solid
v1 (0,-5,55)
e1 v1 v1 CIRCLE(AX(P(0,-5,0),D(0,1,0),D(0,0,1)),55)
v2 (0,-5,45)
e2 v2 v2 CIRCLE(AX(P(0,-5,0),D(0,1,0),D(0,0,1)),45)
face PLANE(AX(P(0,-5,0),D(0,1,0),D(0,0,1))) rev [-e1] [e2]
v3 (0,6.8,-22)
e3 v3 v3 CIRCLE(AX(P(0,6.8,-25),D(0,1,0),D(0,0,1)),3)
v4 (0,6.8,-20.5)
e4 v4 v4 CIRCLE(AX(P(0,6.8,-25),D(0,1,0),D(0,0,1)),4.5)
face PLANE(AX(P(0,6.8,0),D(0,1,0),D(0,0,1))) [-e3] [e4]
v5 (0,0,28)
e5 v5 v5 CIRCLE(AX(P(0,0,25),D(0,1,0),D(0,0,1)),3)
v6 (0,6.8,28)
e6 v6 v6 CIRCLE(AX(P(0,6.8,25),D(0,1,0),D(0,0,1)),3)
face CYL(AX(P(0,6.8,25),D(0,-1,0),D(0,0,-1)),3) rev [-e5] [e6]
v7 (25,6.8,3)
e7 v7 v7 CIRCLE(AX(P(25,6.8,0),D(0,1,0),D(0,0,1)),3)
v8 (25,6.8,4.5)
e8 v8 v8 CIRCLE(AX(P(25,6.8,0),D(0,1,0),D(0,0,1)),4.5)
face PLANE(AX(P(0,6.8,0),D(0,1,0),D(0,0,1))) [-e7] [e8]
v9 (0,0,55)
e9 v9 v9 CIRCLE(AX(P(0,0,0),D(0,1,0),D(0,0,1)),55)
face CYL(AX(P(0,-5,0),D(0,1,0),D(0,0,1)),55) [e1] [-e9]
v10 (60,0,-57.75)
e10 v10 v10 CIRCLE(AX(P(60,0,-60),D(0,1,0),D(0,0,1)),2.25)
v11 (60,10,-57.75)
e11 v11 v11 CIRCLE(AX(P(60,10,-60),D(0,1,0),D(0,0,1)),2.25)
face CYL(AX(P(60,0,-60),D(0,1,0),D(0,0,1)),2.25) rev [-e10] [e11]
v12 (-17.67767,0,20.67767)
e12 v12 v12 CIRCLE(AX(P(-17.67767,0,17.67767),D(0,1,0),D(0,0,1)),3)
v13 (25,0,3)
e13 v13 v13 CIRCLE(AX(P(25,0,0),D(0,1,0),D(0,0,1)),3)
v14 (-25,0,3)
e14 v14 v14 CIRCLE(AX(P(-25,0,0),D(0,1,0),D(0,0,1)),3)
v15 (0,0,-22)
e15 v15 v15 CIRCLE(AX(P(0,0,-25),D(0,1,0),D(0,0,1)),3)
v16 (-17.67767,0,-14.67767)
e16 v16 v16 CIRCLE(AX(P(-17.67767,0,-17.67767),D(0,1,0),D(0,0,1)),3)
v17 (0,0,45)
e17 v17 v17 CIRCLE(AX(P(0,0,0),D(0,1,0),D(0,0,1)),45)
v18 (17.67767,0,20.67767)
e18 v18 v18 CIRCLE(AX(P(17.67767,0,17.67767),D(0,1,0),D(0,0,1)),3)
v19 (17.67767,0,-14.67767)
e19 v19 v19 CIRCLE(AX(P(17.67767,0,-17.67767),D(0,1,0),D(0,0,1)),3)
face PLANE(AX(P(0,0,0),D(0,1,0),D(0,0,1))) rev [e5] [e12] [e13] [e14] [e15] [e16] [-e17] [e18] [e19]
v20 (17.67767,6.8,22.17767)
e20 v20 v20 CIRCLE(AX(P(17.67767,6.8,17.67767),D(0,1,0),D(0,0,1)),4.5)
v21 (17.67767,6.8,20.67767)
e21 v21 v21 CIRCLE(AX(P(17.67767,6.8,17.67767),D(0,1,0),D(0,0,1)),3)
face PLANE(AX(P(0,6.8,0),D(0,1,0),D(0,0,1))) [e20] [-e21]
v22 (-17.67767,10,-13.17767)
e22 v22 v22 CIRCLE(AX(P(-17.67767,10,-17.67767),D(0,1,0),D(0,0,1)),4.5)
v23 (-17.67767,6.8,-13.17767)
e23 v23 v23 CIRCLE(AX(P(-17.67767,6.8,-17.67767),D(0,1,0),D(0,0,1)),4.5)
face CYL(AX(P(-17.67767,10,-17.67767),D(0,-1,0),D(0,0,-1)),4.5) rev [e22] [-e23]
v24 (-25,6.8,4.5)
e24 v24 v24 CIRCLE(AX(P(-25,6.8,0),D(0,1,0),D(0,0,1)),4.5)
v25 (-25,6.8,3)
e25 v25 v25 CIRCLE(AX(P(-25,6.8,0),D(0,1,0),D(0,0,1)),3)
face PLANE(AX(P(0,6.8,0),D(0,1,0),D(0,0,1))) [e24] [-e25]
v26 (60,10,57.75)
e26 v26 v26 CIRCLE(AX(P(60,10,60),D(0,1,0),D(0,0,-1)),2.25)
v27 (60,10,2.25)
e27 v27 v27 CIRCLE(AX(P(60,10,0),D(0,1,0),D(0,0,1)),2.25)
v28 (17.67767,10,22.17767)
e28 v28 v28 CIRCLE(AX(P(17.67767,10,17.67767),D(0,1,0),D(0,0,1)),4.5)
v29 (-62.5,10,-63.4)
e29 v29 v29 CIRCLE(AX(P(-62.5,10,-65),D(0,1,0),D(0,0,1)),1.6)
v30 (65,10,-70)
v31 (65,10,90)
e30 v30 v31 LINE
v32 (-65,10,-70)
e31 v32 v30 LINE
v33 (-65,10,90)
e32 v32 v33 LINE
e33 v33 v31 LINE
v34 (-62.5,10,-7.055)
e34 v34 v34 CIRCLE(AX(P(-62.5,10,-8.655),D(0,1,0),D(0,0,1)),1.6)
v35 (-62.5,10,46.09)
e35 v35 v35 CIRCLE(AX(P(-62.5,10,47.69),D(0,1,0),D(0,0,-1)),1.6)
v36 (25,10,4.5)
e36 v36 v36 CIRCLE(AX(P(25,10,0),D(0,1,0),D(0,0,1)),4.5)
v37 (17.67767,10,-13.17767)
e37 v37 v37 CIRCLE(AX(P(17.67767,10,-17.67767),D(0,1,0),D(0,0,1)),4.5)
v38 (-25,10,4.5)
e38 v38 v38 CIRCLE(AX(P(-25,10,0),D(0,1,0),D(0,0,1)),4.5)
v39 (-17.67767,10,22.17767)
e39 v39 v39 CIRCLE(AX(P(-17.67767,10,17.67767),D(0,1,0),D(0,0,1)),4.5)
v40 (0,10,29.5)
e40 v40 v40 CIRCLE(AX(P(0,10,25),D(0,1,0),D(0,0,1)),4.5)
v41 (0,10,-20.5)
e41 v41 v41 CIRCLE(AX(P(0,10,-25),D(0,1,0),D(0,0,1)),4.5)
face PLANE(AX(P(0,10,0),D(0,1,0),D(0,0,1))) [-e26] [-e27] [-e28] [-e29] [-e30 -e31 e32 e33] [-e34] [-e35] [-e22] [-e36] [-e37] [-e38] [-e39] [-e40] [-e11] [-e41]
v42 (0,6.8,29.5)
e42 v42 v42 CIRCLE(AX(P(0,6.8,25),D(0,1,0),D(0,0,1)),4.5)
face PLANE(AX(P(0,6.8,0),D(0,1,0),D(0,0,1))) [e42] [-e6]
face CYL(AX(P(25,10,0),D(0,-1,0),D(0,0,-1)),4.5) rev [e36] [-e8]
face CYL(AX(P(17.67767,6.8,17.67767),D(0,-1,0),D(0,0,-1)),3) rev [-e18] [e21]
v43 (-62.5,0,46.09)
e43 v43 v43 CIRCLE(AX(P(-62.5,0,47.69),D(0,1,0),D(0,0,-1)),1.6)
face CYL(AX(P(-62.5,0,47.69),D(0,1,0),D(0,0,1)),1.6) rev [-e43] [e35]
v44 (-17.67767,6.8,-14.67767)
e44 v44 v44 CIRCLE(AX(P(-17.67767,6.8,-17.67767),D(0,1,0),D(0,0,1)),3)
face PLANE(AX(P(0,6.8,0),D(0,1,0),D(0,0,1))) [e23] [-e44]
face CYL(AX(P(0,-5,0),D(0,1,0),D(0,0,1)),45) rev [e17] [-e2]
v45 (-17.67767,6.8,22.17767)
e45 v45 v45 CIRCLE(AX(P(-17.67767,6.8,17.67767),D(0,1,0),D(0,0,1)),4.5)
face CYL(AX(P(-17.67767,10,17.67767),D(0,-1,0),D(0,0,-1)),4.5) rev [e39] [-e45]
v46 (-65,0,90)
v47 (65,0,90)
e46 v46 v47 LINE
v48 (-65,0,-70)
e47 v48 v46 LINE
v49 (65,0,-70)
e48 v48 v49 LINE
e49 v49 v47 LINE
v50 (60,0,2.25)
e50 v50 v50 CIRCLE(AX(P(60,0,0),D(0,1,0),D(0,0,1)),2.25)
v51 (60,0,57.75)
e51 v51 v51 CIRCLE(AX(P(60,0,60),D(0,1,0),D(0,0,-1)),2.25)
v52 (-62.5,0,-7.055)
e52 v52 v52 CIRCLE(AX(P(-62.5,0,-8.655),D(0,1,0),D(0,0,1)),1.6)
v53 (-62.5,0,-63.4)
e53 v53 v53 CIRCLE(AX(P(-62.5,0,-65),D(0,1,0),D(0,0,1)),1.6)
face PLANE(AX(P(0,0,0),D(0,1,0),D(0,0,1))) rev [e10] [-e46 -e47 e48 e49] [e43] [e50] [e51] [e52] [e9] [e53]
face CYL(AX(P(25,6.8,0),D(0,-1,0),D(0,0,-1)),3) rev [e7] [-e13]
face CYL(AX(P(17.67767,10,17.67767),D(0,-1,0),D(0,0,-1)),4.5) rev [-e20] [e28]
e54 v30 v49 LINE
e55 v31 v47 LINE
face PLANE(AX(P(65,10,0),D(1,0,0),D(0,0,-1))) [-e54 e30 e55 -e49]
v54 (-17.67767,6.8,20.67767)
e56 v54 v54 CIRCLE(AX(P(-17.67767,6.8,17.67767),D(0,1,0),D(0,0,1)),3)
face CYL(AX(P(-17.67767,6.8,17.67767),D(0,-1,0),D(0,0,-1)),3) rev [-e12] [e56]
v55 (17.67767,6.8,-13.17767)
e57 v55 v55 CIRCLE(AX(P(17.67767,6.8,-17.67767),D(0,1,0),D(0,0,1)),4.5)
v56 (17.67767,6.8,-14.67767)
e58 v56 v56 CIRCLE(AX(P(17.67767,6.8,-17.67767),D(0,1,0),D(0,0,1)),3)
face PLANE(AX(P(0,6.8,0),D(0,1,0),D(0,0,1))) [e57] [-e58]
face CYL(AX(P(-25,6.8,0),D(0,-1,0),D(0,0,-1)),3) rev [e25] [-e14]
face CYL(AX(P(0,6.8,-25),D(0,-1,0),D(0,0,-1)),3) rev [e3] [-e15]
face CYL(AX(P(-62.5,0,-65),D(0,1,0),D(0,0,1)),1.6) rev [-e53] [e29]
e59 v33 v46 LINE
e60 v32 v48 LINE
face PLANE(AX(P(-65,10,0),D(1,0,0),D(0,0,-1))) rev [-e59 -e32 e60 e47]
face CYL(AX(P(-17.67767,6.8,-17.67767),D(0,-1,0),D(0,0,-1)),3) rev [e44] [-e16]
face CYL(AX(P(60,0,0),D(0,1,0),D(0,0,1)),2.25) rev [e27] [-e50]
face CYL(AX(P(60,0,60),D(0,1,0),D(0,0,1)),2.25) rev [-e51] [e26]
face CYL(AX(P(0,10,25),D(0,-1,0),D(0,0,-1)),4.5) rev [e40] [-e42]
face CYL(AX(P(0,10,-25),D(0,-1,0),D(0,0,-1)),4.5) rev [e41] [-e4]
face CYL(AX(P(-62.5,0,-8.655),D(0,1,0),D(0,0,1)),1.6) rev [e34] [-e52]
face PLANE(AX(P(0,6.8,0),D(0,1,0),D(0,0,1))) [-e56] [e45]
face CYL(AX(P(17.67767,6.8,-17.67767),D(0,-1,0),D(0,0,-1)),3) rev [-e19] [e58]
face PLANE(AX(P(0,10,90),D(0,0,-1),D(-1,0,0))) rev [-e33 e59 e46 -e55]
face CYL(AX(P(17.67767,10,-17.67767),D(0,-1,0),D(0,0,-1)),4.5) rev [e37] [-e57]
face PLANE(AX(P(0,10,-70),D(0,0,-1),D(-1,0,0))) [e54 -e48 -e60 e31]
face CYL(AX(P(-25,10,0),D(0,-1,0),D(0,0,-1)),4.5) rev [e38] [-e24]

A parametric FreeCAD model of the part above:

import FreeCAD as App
import Part
import Sketcher

doc = App.newDocument("Part")
body = doc.addObject("PartDesign::Body", "Body")

# Sketch on XZ plane
sketch1 = doc.addObject("Sketcher::SketchObject", "Sketch")
body.addObject(sketch1)
sketch1.AttachmentSupport = (doc.XZ_Plane, [""])
sketch1.MapMode = "FlatFace"
sketch1.addGeometry([
    Part.LineSegment(App.Vector(-65, -70, 0), App.Vector(-65, 90, 0)),  # 0
    Part.LineSegment(App.Vector(-65, 90, 0), App.Vector(65, 90, 0)),  # 1
    Part.LineSegment(App.Vector(65, 90, 0), App.Vector(65, -70, 0)),  # 2
    Part.LineSegment(App.Vector(65, -70, 0), App.Vector(-65, -70, 0)),  # 3
    Part.Circle(App.Vector(-17.7, 17.7, 0), App.Vector(0, 0, 1), 4.5),  # 4
    Part.Circle(App.Vector(0, 25, 0), App.Vector(0, 0, 1), 4.5),  # 5
    Part.Circle(App.Vector(17.7, 17.7, 0), App.Vector(0, 0, 1), 4.5),  # 6
    Part.Circle(App.Vector(-25, 0, 0), App.Vector(0, 0, 1), 4.5),  # 7
    Part.Circle(App.Vector(-17.7, -17.7, 0), App.Vector(0, 0, 1), 4.5),  # 8
    Part.Circle(App.Vector(25, 0, 0), App.Vector(0, 0, 1), 4.5),  # 9
    Part.Circle(App.Vector(0, -25, 0), App.Vector(0, 0, 1), 4.5),  # 10
    Part.Circle(App.Vector(17.7, -17.7, 0), App.Vector(0, 0, 1), 4.5),  # 11
], False)
sketch1.addConstraint([
    Sketcher.Constraint("Coincident", 0, 2, 1, 1),
    Sketcher.Constraint("Coincident", 1, 2, 2, 1),
    Sketcher.Constraint("Coincident", 2, 2, 3, 1),
    Sketcher.Constraint("Coincident", 3, 2, 0, 1),
    Sketcher.Constraint("Vertical", 0),
    Sketcher.Constraint("Horizontal", 1),
    Sketcher.Constraint("Vertical", 2),
    Sketcher.Constraint("Horizontal", 3),
    Sketcher.Constraint("Equal", 4, 5),
    Sketcher.Constraint("Equal", 5, 6),
    Sketcher.Constraint("Equal", 6, 7),
    Sketcher.Constraint("Equal", 7, 8),
    Sketcher.Constraint("Equal", 8, 9),
    Sketcher.Constraint("Equal", 9, 10),
    Sketcher.Constraint("Equal", 10, 11),
    Sketcher.Constraint("Symmetric", 6, 3, 8, 3, -1, 1),
    Sketcher.Constraint("Symmetric", 7, 3, 9, 3, -1, 1),
    Sketcher.Constraint("Symmetric", 5, 3, 10, 3, -1, 1),
    Sketcher.Constraint("Symmetric", 4, 3, 11, 3, -1, 1),
    Sketcher.Constraint("Symmetric", 4, 3, 6, 3, -2),
    Sketcher.Constraint("PointOnObject", 5, 3, -2),
    Sketcher.Constraint("PointOnObject", 7, 3, -1),
    Sketcher.Constraint("Diameter", 4, 9.0),
    Sketcher.Constraint("DistanceX", 1, 1, 1, 2, 130.0),
    Sketcher.Constraint("DistanceY", 0, 1, 0, 2, 160.0),
    Sketcher.Constraint("DistanceY", -1, 1, 5, 3, 25.0),
    Sketcher.Constraint("DistanceX", 7, 3, -1, 1, 25.0),
    Sketcher.Constraint("DistanceX", 0, 2, -1, 1, 65.0),
    Sketcher.Constraint("DistanceY", -1, 1, 0, 2, 90.0),
    Sketcher.Constraint("DistanceX", 4, 3, -1, 1, 17.67767),
    Sketcher.Constraint("DistanceY", -1, 1, 4, 3, 17.67767),
])
pad1 = doc.addObject("PartDesign::Pad", "Pad")
body.addObject(pad1)
pad1.Profile = sketch1
pad1.Length = 10
pad1.Reversed = True

# Sketch on XZ plane
sketch2 = doc.addObject("Sketcher::SketchObject", "Sketch001")
body.addObject(sketch2)
sketch2.AttachmentSupport = (doc.XZ_Plane, [""])
sketch2.MapMode = "FlatFace"
sketch2.addGeometry([
    Part.Circle(App.Vector(0, 0, 0), App.Vector(0, 0, 1), 55),
    Part.Circle(App.Vector(0, 0, 0), App.Vector(0, 0, 1), 45),
], False)
sketch2.addConstraint([
    Sketcher.Constraint("Coincident", 0, 3, -1, 1),
    Sketcher.Constraint("Coincident", 1, 3, -1, 1),
    Sketcher.Constraint("Diameter", 0, 110.0),
    Sketcher.Constraint("Diameter", 1, 90.0),
])
pad2 = doc.addObject("PartDesign::Pad", "Pad001")
body.addObject(pad2)
pad2.Profile = sketch2
pad2.Length = 5

# Sketch on XZ plane
sketch3 = doc.addObject("Sketcher::SketchObject", "Sketch002")
body.addObject(sketch3)
sketch3.AttachmentSupport = (doc.XZ_Plane, [""])
sketch3.MapMode = "FlatFace"
sketch3.addGeometry([
    Part.Circle(App.Vector(17.7, 17.7, 0), App.Vector(0, 0, 1), 4.5),  # 0
    Part.Circle(App.Vector(17.7, 17.7, 0), App.Vector(0, 0, 1), 3),  # 1
    Part.Circle(App.Vector(25, 0, 0), App.Vector(0, 0, 1), 4.5),  # 2
    Part.Circle(App.Vector(25, 0, 0), App.Vector(0, 0, 1), 3),  # 3
    Part.Circle(App.Vector(17.7, -17.7, 0), App.Vector(0, 0, 1), 4.5),  # 4
    Part.Circle(App.Vector(17.7, -17.7, 0), App.Vector(0, 0, 1), 3),  # 5
    Part.Circle(App.Vector(0, -25, 0), App.Vector(0, 0, 1), 4.5),  # 6
    Part.Circle(App.Vector(0, -25, 0), App.Vector(0, 0, 1), 3),  # 7
    Part.Circle(App.Vector(-17.7, -17.7, 0), App.Vector(0, 0, 1), 4.5),  # 8
    Part.Circle(App.Vector(-17.7, -17.7, 0), App.Vector(0, 0, 1), 3),  # 9
    Part.Circle(App.Vector(-25, 0, 0), App.Vector(0, 0, 1), 4.5),  # 10
    Part.Circle(App.Vector(-25, 0, 0), App.Vector(0, 0, 1), 3),  # 11
    Part.Circle(App.Vector(-17.7, 17.7, 0), App.Vector(0, 0, 1), 4.5),  # 12
    Part.Circle(App.Vector(-17.7, 17.7, 0), App.Vector(0, 0, 1), 3),  # 13
    Part.Circle(App.Vector(0, 25, 0), App.Vector(0, 0, 1), 4.5),  # 14
    Part.Circle(App.Vector(0, 25, 0), App.Vector(0, 0, 1), 3),  # 15
], False)
sketch3.addConstraint([
    Sketcher.Constraint("Coincident", 1, 3, 0, 3),
    Sketcher.Constraint("Coincident", 3, 3, 2, 3),
    Sketcher.Constraint("Coincident", 5, 3, 4, 3),
    Sketcher.Constraint("Coincident", 7, 3, 6, 3),
    Sketcher.Constraint("Coincident", 9, 3, 8, 3),
    Sketcher.Constraint("Coincident", 11, 3, 10, 3),
    Sketcher.Constraint("Coincident", 13, 3, 12, 3),
    Sketcher.Constraint("Coincident", 15, 3, 14, 3),
    Sketcher.Constraint("Equal", 0, 2),
    Sketcher.Constraint("Equal", 1, 3),
    Sketcher.Constraint("Equal", 2, 4),
    Sketcher.Constraint("Equal", 3, 5),
    Sketcher.Constraint("Equal", 4, 6),
    Sketcher.Constraint("Equal", 5, 7),
    Sketcher.Constraint("Equal", 6, 8),
    Sketcher.Constraint("Equal", 7, 9),
    Sketcher.Constraint("Equal", 8, 10),
    Sketcher.Constraint("Equal", 9, 11),
    Sketcher.Constraint("Equal", 10, 12),
    Sketcher.Constraint("Equal", 11, 13),
    Sketcher.Constraint("Equal", 12, 14),
    Sketcher.Constraint("Equal", 13, 15),
    Sketcher.Constraint("Symmetric", 0, 3, 8, 3, -1, 1),
    Sketcher.Constraint("Symmetric", 2, 3, 10, 3, -1, 1),
    Sketcher.Constraint("Symmetric", 4, 3, 12, 3, -1, 1),
    Sketcher.Constraint("Symmetric", 6, 3, 14, 3, -1, 1),
    Sketcher.Constraint("Symmetric", 4, 3, 8, 3, -2),
    Sketcher.Constraint("PointOnObject", 2, 3, -1),
    Sketcher.Constraint("PointOnObject", 6, 3, -2),
    Sketcher.Constraint("Diameter", 0, 9.0),
    Sketcher.Constraint("Diameter", 1, 6.0),
    Sketcher.Constraint("DistanceX", -1, 1, 2, 3, 25.0),
    Sketcher.Constraint("DistanceY", 6, 3, -1, 1, 25.0),
    Sketcher.Constraint("DistanceX", -1, 1, 0, 3, 17.67767),
    Sketcher.Constraint("DistanceY", -1, 1, 0, 3, 17.67767),
])
pad3 = doc.addObject("PartDesign::Pad", "Pad002")
body.addObject(pad3)
pad3.Profile = sketch3
pad3.Length = 6.8
pad3.Reversed = True

# Sketch on XZ plane
sketch4 = doc.addObject("Sketcher::SketchObject", "Sketch003")
body.addObject(sketch4)
sketch4.AttachmentSupport = (doc.XZ_Plane, [""])
sketch4.MapMode = "FlatFace"
sketch4.AttachmentOffset = App.Placement(App.Vector(0, 0, -10), App.Rotation())
sketch4.addGeometry([
    Part.Circle(App.Vector(-62.5, -65, 0), App.Vector(0, 0, 1), 1.6),
    Part.Circle(App.Vector(-62.5, -8.7, 0), App.Vector(0, 0, 1), 1.6),
    Part.Circle(App.Vector(-62.5, 47.7, 0), App.Vector(0, 0, 1), 1.6),
], False)
sketch4.addConstraint([
    Sketcher.Constraint("Equal", 0, 1),
    Sketcher.Constraint("Equal", 1, 2),
    Sketcher.Constraint("Vertical", 0, 3, 1, 3),
    Sketcher.Constraint("Vertical", 1, 3, 2, 3),
    Sketcher.Constraint("Diameter", 0, 3.2),
    Sketcher.Constraint("DistanceY", 0, 3, -1, 1, 65.0),
    Sketcher.Constraint("DistanceX", 0, 3, -1, 1, 62.5),
    Sketcher.Constraint("DistanceY", -1, 1, 2, 3, 47.69),
    Sketcher.Constraint("DistanceY", 1, 3, -1, 1, 8.655),
])
pocket1 = doc.addObject("PartDesign::Pocket", "Pocket")
body.addObject(pocket1)
pocket1.Profile = sketch4
pocket1.Length = 10
pocket1.Reversed = True

# Sketch on XZ plane
sketch5 = doc.addObject("Sketcher::SketchObject", "Sketch004")
body.addObject(sketch5)
sketch5.AttachmentSupport = (doc.XZ_Plane, [""])
sketch5.MapMode = "FlatFace"
sketch5.AttachmentOffset = App.Placement(App.Vector(0, 0, -10), App.Rotation())
sketch5.addGeometry([
    Part.Circle(App.Vector(60, -60, 0), App.Vector(0, 0, 1), 2.2),
    Part.Circle(App.Vector(60, 0, 0), App.Vector(0, 0, 1), 2.2),
    Part.Circle(App.Vector(60, 60, 0), App.Vector(0, 0, 1), 2.2),
], False)
sketch5.addConstraint([
    Sketcher.Constraint("Equal", 0, 1),
    Sketcher.Constraint("Equal", 1, 2),
    Sketcher.Constraint("Symmetric", 0, 3, 2, 3, -1),
    Sketcher.Constraint("PointOnObject", 1, 3, -1),
    Sketcher.Constraint("Vertical", 0, 3, 1, 3),
    Sketcher.Constraint("Diameter", 0, 4.5),
    Sketcher.Constraint("DistanceX", -1, 1, 0, 3, 60.0),
    Sketcher.Constraint("DistanceY", 0, 3, -1, 1, 60.0),
])
pocket2 = doc.addObject("PartDesign::Pocket", "Pocket001")
body.addObject(pocket2)
pocket2.Profile = sketch5
pocket2.Length = 10
pocket2.Reversed = True

doc.recompute()
